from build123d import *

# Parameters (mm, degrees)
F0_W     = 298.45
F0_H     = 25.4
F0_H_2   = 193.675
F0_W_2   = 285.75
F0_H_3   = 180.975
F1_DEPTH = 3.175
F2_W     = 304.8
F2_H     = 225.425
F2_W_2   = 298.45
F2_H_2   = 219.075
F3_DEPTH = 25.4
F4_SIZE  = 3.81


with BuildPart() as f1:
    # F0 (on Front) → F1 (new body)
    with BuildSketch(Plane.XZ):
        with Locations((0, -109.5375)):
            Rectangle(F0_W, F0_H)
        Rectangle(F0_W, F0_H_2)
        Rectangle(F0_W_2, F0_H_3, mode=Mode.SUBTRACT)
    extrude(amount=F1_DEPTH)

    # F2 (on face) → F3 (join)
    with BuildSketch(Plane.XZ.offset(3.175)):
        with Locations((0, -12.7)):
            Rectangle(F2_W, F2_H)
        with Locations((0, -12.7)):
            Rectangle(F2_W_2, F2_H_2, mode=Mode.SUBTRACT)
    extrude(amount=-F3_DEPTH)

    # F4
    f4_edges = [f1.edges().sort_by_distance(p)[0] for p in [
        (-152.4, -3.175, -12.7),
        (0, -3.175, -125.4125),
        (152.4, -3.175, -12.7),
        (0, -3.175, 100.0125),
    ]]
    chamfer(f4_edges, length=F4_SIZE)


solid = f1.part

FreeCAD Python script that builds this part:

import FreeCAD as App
import Part
import Sketcher
Q = App.Units.Quantity


def edges_at(feature, points):
    """Names of the edges that pass closest to the given points."""
    edges = feature.Shape.Edges
    near = lambda p: min(range(len(edges)), key=lambda i: edges[i].distToShape(Part.Vertex(*p))[0])
    return sorted({f"Edge{near(p) + 1}" for p in points})


def add_polygon(sketch, points):
    """Adds a closed chain of lines whose ends are joined by coincident constraints."""
    first, n = sketch.GeometryCount, len(points)
    for a, b in zip(points, points[1:] + points[:1]):
        sketch.addGeometry(Part.LineSegment(App.Vector(*a, 0), App.Vector(*b, 0)), False)
    for i in range(n):
        sketch.addConstraint(Sketcher.Constraint("Coincident", first + i, 2, first + (i + 1) % n, 1))

doc = App.newDocument("Part")
params = doc.addObject("Spreadsheet::Sheet", "Params")
for row, (alias, value) in enumerate([
    ("sketch1_width", "11.75 in"),
    ("sketch1_width2", "11.25 in"),
    ("sketch1_height", "8.625 in"),
    ("sketch1_height2", "7.125 in"),
    ("pad1_length", "0.125 in"),
    ("sketch2_width", "12 in"),
    ("sketch2_width2", "11.75 in"),
    ("sketch2_height", "8.875 in"),
    ("sketch2_height2", "8.625 in"),
    ("pad2_length", "1 in"),
    ("chamfer_size", "0.15 in"),
], start=1):
    params.set(f"A{row}", alias)
    params.set(f"B{row}", "=" + value)
    params.setAlias(f"B{row}", alias)

body = doc.addObject("PartDesign::Body", "Body")

sketch1 = body.newObject("Sketcher::SketchObject", "Sketch")
sketch1.AttachmentSupport = (doc.getObject("XZ_Plane"), [""])
sketch1.MapMode = "FlatFace"
add_polygon(sketch1, [(-149, -122), (149, -122), (149, 97), (-149, 97)])
add_polygon(sketch1, [(143, -90), (-143, -90), (-143, 90), (143, 90)])
sketch1.addConstraint([
    Sketcher.Constraint("Horizontal", 0),
    Sketcher.Constraint("Vertical", 1),
    Sketcher.Constraint("Horizontal", 2),
    Sketcher.Constraint("Vertical", 3),
    Sketcher.Constraint("Horizontal", 4),
    Sketcher.Constraint("Vertical", 5),
    Sketcher.Constraint("Horizontal", 6),
    Sketcher.Constraint("Vertical", 7),
    Sketcher.Constraint("Symmetric", 4, 2, 6, 2, -1, 1),
    Sketcher.Constraint("DistanceX", 0, 1, 0, 2, Q("11.75 in")),
    Sketcher.Constraint("DistanceX", 4, 2, 4, 1, Q("11.25 in")),
    Sketcher.Constraint("DistanceX", 4, 2, 0, 2, Q("11.5 in")),
    Sketcher.Constraint("DistanceY", 1, 1, 1, 2, Q("8.625 in")),
    Sketcher.Constraint("DistanceY", 5, 1, 5, 2, Q("7.125 in")),
    Sketcher.Constraint("DistanceY", 3, 2, 4, 2, Q("1.25 in")),
])
sketch1.setExpression("Constraints[17]", "Params.sketch1_width")
sketch1.setExpression("Constraints[18]", "Params.sketch1_width2")
sketch1.setExpression("Constraints[20]", "Params.sketch1_height")
sketch1.setExpression("Constraints[21]", "Params.sketch1_height2")
pad1 = body.newObject("PartDesign::Pad", "Pad")
pad1.Profile = sketch1
pad1.setExpression("Length", "Params.pad1_length")

sketch2 = body.newObject("Sketcher::SketchObject", "Sketch001")
sketch2.AttachmentSupport = (doc.getObject("XZ_Plane"), [""])
sketch2.MapMode = "FlatFace"
sketch2.AttachmentOffset = App.Placement(App.Vector(0, 0, 0.125 * 25.4), App.Rotation())
add_polygon(sketch2, [(-152, 100), (-152, -125), (152, -125), (152, 100)])
add_polygon(sketch2, [(149, -122), (-149, -122), (-149, 97), (149, 97)])
sketch2.addConstraint([
    Sketcher.Constraint("Vertical", 0),
    Sketcher.Constraint("Horizontal", 1),
    Sketcher.Constraint("Vertical", 2),
    Sketcher.Constraint("Horizontal", 3),
    Sketcher.Constraint("Horizontal", 4),
    Sketcher.Constraint("Vertical", 5),
    Sketcher.Constraint("Horizontal", 6),
    Sketcher.Constraint("Vertical", 7),
    Sketcher.Constraint("DistanceX", 1, 1, 1, 2, Q("12 in")),
    Sketcher.Constraint("DistanceX", 0, 2, -1, 1, Q("6 in")),
    Sketcher.Constraint("DistanceX", 4, 2, 4, 1, Q("11.75 in")),
    Sketcher.Constraint("DistanceY", 0, 2, 0, 1, Q("8.875 in")),
    Sketcher.Constraint("DistanceY", 5, 1, 5, 2, Q("8.625 in")),
    Sketcher.Constraint("DistanceY", 4, 2, 3, 2, Q("8.75 in")),
    Sketcher.Constraint("DistanceY", 0, 2, -1, 1, Q("4.9375 in")),
    Sketcher.Constraint("DistanceX", 4, 2, -1, 1, Q("5.875 in")),
])
sketch2.setExpression("Constraints[16]", "Params.sketch2_width")
sketch2.setExpression("Constraints[18]", "Params.sketch2_width2")
sketch2.setExpression("Constraints[19]", "Params.sketch2_height")
sketch2.setExpression("Constraints[20]", "Params.sketch2_height2")
pad2 = body.newObject("PartDesign::Pad", "Pad001")
pad2.Profile = sketch2
pad2.setExpression("Length", "Params.pad2_length")
pad2.Reversed = True
doc.recompute()

chamfer = body.newObject("PartDesign::Chamfer", "Chamfer")
chamfer.Base = (pad2, edges_at(pad2, [
    (-152.4, -3.175, -12.7),
    (0, -3.175, -125.412),
    (152.4, -3.175, -12.7),
    (0, -3.175, 100.013),
]))
chamfer.setExpression("Size", "Params.chamfer_size")

doc.recompute()
